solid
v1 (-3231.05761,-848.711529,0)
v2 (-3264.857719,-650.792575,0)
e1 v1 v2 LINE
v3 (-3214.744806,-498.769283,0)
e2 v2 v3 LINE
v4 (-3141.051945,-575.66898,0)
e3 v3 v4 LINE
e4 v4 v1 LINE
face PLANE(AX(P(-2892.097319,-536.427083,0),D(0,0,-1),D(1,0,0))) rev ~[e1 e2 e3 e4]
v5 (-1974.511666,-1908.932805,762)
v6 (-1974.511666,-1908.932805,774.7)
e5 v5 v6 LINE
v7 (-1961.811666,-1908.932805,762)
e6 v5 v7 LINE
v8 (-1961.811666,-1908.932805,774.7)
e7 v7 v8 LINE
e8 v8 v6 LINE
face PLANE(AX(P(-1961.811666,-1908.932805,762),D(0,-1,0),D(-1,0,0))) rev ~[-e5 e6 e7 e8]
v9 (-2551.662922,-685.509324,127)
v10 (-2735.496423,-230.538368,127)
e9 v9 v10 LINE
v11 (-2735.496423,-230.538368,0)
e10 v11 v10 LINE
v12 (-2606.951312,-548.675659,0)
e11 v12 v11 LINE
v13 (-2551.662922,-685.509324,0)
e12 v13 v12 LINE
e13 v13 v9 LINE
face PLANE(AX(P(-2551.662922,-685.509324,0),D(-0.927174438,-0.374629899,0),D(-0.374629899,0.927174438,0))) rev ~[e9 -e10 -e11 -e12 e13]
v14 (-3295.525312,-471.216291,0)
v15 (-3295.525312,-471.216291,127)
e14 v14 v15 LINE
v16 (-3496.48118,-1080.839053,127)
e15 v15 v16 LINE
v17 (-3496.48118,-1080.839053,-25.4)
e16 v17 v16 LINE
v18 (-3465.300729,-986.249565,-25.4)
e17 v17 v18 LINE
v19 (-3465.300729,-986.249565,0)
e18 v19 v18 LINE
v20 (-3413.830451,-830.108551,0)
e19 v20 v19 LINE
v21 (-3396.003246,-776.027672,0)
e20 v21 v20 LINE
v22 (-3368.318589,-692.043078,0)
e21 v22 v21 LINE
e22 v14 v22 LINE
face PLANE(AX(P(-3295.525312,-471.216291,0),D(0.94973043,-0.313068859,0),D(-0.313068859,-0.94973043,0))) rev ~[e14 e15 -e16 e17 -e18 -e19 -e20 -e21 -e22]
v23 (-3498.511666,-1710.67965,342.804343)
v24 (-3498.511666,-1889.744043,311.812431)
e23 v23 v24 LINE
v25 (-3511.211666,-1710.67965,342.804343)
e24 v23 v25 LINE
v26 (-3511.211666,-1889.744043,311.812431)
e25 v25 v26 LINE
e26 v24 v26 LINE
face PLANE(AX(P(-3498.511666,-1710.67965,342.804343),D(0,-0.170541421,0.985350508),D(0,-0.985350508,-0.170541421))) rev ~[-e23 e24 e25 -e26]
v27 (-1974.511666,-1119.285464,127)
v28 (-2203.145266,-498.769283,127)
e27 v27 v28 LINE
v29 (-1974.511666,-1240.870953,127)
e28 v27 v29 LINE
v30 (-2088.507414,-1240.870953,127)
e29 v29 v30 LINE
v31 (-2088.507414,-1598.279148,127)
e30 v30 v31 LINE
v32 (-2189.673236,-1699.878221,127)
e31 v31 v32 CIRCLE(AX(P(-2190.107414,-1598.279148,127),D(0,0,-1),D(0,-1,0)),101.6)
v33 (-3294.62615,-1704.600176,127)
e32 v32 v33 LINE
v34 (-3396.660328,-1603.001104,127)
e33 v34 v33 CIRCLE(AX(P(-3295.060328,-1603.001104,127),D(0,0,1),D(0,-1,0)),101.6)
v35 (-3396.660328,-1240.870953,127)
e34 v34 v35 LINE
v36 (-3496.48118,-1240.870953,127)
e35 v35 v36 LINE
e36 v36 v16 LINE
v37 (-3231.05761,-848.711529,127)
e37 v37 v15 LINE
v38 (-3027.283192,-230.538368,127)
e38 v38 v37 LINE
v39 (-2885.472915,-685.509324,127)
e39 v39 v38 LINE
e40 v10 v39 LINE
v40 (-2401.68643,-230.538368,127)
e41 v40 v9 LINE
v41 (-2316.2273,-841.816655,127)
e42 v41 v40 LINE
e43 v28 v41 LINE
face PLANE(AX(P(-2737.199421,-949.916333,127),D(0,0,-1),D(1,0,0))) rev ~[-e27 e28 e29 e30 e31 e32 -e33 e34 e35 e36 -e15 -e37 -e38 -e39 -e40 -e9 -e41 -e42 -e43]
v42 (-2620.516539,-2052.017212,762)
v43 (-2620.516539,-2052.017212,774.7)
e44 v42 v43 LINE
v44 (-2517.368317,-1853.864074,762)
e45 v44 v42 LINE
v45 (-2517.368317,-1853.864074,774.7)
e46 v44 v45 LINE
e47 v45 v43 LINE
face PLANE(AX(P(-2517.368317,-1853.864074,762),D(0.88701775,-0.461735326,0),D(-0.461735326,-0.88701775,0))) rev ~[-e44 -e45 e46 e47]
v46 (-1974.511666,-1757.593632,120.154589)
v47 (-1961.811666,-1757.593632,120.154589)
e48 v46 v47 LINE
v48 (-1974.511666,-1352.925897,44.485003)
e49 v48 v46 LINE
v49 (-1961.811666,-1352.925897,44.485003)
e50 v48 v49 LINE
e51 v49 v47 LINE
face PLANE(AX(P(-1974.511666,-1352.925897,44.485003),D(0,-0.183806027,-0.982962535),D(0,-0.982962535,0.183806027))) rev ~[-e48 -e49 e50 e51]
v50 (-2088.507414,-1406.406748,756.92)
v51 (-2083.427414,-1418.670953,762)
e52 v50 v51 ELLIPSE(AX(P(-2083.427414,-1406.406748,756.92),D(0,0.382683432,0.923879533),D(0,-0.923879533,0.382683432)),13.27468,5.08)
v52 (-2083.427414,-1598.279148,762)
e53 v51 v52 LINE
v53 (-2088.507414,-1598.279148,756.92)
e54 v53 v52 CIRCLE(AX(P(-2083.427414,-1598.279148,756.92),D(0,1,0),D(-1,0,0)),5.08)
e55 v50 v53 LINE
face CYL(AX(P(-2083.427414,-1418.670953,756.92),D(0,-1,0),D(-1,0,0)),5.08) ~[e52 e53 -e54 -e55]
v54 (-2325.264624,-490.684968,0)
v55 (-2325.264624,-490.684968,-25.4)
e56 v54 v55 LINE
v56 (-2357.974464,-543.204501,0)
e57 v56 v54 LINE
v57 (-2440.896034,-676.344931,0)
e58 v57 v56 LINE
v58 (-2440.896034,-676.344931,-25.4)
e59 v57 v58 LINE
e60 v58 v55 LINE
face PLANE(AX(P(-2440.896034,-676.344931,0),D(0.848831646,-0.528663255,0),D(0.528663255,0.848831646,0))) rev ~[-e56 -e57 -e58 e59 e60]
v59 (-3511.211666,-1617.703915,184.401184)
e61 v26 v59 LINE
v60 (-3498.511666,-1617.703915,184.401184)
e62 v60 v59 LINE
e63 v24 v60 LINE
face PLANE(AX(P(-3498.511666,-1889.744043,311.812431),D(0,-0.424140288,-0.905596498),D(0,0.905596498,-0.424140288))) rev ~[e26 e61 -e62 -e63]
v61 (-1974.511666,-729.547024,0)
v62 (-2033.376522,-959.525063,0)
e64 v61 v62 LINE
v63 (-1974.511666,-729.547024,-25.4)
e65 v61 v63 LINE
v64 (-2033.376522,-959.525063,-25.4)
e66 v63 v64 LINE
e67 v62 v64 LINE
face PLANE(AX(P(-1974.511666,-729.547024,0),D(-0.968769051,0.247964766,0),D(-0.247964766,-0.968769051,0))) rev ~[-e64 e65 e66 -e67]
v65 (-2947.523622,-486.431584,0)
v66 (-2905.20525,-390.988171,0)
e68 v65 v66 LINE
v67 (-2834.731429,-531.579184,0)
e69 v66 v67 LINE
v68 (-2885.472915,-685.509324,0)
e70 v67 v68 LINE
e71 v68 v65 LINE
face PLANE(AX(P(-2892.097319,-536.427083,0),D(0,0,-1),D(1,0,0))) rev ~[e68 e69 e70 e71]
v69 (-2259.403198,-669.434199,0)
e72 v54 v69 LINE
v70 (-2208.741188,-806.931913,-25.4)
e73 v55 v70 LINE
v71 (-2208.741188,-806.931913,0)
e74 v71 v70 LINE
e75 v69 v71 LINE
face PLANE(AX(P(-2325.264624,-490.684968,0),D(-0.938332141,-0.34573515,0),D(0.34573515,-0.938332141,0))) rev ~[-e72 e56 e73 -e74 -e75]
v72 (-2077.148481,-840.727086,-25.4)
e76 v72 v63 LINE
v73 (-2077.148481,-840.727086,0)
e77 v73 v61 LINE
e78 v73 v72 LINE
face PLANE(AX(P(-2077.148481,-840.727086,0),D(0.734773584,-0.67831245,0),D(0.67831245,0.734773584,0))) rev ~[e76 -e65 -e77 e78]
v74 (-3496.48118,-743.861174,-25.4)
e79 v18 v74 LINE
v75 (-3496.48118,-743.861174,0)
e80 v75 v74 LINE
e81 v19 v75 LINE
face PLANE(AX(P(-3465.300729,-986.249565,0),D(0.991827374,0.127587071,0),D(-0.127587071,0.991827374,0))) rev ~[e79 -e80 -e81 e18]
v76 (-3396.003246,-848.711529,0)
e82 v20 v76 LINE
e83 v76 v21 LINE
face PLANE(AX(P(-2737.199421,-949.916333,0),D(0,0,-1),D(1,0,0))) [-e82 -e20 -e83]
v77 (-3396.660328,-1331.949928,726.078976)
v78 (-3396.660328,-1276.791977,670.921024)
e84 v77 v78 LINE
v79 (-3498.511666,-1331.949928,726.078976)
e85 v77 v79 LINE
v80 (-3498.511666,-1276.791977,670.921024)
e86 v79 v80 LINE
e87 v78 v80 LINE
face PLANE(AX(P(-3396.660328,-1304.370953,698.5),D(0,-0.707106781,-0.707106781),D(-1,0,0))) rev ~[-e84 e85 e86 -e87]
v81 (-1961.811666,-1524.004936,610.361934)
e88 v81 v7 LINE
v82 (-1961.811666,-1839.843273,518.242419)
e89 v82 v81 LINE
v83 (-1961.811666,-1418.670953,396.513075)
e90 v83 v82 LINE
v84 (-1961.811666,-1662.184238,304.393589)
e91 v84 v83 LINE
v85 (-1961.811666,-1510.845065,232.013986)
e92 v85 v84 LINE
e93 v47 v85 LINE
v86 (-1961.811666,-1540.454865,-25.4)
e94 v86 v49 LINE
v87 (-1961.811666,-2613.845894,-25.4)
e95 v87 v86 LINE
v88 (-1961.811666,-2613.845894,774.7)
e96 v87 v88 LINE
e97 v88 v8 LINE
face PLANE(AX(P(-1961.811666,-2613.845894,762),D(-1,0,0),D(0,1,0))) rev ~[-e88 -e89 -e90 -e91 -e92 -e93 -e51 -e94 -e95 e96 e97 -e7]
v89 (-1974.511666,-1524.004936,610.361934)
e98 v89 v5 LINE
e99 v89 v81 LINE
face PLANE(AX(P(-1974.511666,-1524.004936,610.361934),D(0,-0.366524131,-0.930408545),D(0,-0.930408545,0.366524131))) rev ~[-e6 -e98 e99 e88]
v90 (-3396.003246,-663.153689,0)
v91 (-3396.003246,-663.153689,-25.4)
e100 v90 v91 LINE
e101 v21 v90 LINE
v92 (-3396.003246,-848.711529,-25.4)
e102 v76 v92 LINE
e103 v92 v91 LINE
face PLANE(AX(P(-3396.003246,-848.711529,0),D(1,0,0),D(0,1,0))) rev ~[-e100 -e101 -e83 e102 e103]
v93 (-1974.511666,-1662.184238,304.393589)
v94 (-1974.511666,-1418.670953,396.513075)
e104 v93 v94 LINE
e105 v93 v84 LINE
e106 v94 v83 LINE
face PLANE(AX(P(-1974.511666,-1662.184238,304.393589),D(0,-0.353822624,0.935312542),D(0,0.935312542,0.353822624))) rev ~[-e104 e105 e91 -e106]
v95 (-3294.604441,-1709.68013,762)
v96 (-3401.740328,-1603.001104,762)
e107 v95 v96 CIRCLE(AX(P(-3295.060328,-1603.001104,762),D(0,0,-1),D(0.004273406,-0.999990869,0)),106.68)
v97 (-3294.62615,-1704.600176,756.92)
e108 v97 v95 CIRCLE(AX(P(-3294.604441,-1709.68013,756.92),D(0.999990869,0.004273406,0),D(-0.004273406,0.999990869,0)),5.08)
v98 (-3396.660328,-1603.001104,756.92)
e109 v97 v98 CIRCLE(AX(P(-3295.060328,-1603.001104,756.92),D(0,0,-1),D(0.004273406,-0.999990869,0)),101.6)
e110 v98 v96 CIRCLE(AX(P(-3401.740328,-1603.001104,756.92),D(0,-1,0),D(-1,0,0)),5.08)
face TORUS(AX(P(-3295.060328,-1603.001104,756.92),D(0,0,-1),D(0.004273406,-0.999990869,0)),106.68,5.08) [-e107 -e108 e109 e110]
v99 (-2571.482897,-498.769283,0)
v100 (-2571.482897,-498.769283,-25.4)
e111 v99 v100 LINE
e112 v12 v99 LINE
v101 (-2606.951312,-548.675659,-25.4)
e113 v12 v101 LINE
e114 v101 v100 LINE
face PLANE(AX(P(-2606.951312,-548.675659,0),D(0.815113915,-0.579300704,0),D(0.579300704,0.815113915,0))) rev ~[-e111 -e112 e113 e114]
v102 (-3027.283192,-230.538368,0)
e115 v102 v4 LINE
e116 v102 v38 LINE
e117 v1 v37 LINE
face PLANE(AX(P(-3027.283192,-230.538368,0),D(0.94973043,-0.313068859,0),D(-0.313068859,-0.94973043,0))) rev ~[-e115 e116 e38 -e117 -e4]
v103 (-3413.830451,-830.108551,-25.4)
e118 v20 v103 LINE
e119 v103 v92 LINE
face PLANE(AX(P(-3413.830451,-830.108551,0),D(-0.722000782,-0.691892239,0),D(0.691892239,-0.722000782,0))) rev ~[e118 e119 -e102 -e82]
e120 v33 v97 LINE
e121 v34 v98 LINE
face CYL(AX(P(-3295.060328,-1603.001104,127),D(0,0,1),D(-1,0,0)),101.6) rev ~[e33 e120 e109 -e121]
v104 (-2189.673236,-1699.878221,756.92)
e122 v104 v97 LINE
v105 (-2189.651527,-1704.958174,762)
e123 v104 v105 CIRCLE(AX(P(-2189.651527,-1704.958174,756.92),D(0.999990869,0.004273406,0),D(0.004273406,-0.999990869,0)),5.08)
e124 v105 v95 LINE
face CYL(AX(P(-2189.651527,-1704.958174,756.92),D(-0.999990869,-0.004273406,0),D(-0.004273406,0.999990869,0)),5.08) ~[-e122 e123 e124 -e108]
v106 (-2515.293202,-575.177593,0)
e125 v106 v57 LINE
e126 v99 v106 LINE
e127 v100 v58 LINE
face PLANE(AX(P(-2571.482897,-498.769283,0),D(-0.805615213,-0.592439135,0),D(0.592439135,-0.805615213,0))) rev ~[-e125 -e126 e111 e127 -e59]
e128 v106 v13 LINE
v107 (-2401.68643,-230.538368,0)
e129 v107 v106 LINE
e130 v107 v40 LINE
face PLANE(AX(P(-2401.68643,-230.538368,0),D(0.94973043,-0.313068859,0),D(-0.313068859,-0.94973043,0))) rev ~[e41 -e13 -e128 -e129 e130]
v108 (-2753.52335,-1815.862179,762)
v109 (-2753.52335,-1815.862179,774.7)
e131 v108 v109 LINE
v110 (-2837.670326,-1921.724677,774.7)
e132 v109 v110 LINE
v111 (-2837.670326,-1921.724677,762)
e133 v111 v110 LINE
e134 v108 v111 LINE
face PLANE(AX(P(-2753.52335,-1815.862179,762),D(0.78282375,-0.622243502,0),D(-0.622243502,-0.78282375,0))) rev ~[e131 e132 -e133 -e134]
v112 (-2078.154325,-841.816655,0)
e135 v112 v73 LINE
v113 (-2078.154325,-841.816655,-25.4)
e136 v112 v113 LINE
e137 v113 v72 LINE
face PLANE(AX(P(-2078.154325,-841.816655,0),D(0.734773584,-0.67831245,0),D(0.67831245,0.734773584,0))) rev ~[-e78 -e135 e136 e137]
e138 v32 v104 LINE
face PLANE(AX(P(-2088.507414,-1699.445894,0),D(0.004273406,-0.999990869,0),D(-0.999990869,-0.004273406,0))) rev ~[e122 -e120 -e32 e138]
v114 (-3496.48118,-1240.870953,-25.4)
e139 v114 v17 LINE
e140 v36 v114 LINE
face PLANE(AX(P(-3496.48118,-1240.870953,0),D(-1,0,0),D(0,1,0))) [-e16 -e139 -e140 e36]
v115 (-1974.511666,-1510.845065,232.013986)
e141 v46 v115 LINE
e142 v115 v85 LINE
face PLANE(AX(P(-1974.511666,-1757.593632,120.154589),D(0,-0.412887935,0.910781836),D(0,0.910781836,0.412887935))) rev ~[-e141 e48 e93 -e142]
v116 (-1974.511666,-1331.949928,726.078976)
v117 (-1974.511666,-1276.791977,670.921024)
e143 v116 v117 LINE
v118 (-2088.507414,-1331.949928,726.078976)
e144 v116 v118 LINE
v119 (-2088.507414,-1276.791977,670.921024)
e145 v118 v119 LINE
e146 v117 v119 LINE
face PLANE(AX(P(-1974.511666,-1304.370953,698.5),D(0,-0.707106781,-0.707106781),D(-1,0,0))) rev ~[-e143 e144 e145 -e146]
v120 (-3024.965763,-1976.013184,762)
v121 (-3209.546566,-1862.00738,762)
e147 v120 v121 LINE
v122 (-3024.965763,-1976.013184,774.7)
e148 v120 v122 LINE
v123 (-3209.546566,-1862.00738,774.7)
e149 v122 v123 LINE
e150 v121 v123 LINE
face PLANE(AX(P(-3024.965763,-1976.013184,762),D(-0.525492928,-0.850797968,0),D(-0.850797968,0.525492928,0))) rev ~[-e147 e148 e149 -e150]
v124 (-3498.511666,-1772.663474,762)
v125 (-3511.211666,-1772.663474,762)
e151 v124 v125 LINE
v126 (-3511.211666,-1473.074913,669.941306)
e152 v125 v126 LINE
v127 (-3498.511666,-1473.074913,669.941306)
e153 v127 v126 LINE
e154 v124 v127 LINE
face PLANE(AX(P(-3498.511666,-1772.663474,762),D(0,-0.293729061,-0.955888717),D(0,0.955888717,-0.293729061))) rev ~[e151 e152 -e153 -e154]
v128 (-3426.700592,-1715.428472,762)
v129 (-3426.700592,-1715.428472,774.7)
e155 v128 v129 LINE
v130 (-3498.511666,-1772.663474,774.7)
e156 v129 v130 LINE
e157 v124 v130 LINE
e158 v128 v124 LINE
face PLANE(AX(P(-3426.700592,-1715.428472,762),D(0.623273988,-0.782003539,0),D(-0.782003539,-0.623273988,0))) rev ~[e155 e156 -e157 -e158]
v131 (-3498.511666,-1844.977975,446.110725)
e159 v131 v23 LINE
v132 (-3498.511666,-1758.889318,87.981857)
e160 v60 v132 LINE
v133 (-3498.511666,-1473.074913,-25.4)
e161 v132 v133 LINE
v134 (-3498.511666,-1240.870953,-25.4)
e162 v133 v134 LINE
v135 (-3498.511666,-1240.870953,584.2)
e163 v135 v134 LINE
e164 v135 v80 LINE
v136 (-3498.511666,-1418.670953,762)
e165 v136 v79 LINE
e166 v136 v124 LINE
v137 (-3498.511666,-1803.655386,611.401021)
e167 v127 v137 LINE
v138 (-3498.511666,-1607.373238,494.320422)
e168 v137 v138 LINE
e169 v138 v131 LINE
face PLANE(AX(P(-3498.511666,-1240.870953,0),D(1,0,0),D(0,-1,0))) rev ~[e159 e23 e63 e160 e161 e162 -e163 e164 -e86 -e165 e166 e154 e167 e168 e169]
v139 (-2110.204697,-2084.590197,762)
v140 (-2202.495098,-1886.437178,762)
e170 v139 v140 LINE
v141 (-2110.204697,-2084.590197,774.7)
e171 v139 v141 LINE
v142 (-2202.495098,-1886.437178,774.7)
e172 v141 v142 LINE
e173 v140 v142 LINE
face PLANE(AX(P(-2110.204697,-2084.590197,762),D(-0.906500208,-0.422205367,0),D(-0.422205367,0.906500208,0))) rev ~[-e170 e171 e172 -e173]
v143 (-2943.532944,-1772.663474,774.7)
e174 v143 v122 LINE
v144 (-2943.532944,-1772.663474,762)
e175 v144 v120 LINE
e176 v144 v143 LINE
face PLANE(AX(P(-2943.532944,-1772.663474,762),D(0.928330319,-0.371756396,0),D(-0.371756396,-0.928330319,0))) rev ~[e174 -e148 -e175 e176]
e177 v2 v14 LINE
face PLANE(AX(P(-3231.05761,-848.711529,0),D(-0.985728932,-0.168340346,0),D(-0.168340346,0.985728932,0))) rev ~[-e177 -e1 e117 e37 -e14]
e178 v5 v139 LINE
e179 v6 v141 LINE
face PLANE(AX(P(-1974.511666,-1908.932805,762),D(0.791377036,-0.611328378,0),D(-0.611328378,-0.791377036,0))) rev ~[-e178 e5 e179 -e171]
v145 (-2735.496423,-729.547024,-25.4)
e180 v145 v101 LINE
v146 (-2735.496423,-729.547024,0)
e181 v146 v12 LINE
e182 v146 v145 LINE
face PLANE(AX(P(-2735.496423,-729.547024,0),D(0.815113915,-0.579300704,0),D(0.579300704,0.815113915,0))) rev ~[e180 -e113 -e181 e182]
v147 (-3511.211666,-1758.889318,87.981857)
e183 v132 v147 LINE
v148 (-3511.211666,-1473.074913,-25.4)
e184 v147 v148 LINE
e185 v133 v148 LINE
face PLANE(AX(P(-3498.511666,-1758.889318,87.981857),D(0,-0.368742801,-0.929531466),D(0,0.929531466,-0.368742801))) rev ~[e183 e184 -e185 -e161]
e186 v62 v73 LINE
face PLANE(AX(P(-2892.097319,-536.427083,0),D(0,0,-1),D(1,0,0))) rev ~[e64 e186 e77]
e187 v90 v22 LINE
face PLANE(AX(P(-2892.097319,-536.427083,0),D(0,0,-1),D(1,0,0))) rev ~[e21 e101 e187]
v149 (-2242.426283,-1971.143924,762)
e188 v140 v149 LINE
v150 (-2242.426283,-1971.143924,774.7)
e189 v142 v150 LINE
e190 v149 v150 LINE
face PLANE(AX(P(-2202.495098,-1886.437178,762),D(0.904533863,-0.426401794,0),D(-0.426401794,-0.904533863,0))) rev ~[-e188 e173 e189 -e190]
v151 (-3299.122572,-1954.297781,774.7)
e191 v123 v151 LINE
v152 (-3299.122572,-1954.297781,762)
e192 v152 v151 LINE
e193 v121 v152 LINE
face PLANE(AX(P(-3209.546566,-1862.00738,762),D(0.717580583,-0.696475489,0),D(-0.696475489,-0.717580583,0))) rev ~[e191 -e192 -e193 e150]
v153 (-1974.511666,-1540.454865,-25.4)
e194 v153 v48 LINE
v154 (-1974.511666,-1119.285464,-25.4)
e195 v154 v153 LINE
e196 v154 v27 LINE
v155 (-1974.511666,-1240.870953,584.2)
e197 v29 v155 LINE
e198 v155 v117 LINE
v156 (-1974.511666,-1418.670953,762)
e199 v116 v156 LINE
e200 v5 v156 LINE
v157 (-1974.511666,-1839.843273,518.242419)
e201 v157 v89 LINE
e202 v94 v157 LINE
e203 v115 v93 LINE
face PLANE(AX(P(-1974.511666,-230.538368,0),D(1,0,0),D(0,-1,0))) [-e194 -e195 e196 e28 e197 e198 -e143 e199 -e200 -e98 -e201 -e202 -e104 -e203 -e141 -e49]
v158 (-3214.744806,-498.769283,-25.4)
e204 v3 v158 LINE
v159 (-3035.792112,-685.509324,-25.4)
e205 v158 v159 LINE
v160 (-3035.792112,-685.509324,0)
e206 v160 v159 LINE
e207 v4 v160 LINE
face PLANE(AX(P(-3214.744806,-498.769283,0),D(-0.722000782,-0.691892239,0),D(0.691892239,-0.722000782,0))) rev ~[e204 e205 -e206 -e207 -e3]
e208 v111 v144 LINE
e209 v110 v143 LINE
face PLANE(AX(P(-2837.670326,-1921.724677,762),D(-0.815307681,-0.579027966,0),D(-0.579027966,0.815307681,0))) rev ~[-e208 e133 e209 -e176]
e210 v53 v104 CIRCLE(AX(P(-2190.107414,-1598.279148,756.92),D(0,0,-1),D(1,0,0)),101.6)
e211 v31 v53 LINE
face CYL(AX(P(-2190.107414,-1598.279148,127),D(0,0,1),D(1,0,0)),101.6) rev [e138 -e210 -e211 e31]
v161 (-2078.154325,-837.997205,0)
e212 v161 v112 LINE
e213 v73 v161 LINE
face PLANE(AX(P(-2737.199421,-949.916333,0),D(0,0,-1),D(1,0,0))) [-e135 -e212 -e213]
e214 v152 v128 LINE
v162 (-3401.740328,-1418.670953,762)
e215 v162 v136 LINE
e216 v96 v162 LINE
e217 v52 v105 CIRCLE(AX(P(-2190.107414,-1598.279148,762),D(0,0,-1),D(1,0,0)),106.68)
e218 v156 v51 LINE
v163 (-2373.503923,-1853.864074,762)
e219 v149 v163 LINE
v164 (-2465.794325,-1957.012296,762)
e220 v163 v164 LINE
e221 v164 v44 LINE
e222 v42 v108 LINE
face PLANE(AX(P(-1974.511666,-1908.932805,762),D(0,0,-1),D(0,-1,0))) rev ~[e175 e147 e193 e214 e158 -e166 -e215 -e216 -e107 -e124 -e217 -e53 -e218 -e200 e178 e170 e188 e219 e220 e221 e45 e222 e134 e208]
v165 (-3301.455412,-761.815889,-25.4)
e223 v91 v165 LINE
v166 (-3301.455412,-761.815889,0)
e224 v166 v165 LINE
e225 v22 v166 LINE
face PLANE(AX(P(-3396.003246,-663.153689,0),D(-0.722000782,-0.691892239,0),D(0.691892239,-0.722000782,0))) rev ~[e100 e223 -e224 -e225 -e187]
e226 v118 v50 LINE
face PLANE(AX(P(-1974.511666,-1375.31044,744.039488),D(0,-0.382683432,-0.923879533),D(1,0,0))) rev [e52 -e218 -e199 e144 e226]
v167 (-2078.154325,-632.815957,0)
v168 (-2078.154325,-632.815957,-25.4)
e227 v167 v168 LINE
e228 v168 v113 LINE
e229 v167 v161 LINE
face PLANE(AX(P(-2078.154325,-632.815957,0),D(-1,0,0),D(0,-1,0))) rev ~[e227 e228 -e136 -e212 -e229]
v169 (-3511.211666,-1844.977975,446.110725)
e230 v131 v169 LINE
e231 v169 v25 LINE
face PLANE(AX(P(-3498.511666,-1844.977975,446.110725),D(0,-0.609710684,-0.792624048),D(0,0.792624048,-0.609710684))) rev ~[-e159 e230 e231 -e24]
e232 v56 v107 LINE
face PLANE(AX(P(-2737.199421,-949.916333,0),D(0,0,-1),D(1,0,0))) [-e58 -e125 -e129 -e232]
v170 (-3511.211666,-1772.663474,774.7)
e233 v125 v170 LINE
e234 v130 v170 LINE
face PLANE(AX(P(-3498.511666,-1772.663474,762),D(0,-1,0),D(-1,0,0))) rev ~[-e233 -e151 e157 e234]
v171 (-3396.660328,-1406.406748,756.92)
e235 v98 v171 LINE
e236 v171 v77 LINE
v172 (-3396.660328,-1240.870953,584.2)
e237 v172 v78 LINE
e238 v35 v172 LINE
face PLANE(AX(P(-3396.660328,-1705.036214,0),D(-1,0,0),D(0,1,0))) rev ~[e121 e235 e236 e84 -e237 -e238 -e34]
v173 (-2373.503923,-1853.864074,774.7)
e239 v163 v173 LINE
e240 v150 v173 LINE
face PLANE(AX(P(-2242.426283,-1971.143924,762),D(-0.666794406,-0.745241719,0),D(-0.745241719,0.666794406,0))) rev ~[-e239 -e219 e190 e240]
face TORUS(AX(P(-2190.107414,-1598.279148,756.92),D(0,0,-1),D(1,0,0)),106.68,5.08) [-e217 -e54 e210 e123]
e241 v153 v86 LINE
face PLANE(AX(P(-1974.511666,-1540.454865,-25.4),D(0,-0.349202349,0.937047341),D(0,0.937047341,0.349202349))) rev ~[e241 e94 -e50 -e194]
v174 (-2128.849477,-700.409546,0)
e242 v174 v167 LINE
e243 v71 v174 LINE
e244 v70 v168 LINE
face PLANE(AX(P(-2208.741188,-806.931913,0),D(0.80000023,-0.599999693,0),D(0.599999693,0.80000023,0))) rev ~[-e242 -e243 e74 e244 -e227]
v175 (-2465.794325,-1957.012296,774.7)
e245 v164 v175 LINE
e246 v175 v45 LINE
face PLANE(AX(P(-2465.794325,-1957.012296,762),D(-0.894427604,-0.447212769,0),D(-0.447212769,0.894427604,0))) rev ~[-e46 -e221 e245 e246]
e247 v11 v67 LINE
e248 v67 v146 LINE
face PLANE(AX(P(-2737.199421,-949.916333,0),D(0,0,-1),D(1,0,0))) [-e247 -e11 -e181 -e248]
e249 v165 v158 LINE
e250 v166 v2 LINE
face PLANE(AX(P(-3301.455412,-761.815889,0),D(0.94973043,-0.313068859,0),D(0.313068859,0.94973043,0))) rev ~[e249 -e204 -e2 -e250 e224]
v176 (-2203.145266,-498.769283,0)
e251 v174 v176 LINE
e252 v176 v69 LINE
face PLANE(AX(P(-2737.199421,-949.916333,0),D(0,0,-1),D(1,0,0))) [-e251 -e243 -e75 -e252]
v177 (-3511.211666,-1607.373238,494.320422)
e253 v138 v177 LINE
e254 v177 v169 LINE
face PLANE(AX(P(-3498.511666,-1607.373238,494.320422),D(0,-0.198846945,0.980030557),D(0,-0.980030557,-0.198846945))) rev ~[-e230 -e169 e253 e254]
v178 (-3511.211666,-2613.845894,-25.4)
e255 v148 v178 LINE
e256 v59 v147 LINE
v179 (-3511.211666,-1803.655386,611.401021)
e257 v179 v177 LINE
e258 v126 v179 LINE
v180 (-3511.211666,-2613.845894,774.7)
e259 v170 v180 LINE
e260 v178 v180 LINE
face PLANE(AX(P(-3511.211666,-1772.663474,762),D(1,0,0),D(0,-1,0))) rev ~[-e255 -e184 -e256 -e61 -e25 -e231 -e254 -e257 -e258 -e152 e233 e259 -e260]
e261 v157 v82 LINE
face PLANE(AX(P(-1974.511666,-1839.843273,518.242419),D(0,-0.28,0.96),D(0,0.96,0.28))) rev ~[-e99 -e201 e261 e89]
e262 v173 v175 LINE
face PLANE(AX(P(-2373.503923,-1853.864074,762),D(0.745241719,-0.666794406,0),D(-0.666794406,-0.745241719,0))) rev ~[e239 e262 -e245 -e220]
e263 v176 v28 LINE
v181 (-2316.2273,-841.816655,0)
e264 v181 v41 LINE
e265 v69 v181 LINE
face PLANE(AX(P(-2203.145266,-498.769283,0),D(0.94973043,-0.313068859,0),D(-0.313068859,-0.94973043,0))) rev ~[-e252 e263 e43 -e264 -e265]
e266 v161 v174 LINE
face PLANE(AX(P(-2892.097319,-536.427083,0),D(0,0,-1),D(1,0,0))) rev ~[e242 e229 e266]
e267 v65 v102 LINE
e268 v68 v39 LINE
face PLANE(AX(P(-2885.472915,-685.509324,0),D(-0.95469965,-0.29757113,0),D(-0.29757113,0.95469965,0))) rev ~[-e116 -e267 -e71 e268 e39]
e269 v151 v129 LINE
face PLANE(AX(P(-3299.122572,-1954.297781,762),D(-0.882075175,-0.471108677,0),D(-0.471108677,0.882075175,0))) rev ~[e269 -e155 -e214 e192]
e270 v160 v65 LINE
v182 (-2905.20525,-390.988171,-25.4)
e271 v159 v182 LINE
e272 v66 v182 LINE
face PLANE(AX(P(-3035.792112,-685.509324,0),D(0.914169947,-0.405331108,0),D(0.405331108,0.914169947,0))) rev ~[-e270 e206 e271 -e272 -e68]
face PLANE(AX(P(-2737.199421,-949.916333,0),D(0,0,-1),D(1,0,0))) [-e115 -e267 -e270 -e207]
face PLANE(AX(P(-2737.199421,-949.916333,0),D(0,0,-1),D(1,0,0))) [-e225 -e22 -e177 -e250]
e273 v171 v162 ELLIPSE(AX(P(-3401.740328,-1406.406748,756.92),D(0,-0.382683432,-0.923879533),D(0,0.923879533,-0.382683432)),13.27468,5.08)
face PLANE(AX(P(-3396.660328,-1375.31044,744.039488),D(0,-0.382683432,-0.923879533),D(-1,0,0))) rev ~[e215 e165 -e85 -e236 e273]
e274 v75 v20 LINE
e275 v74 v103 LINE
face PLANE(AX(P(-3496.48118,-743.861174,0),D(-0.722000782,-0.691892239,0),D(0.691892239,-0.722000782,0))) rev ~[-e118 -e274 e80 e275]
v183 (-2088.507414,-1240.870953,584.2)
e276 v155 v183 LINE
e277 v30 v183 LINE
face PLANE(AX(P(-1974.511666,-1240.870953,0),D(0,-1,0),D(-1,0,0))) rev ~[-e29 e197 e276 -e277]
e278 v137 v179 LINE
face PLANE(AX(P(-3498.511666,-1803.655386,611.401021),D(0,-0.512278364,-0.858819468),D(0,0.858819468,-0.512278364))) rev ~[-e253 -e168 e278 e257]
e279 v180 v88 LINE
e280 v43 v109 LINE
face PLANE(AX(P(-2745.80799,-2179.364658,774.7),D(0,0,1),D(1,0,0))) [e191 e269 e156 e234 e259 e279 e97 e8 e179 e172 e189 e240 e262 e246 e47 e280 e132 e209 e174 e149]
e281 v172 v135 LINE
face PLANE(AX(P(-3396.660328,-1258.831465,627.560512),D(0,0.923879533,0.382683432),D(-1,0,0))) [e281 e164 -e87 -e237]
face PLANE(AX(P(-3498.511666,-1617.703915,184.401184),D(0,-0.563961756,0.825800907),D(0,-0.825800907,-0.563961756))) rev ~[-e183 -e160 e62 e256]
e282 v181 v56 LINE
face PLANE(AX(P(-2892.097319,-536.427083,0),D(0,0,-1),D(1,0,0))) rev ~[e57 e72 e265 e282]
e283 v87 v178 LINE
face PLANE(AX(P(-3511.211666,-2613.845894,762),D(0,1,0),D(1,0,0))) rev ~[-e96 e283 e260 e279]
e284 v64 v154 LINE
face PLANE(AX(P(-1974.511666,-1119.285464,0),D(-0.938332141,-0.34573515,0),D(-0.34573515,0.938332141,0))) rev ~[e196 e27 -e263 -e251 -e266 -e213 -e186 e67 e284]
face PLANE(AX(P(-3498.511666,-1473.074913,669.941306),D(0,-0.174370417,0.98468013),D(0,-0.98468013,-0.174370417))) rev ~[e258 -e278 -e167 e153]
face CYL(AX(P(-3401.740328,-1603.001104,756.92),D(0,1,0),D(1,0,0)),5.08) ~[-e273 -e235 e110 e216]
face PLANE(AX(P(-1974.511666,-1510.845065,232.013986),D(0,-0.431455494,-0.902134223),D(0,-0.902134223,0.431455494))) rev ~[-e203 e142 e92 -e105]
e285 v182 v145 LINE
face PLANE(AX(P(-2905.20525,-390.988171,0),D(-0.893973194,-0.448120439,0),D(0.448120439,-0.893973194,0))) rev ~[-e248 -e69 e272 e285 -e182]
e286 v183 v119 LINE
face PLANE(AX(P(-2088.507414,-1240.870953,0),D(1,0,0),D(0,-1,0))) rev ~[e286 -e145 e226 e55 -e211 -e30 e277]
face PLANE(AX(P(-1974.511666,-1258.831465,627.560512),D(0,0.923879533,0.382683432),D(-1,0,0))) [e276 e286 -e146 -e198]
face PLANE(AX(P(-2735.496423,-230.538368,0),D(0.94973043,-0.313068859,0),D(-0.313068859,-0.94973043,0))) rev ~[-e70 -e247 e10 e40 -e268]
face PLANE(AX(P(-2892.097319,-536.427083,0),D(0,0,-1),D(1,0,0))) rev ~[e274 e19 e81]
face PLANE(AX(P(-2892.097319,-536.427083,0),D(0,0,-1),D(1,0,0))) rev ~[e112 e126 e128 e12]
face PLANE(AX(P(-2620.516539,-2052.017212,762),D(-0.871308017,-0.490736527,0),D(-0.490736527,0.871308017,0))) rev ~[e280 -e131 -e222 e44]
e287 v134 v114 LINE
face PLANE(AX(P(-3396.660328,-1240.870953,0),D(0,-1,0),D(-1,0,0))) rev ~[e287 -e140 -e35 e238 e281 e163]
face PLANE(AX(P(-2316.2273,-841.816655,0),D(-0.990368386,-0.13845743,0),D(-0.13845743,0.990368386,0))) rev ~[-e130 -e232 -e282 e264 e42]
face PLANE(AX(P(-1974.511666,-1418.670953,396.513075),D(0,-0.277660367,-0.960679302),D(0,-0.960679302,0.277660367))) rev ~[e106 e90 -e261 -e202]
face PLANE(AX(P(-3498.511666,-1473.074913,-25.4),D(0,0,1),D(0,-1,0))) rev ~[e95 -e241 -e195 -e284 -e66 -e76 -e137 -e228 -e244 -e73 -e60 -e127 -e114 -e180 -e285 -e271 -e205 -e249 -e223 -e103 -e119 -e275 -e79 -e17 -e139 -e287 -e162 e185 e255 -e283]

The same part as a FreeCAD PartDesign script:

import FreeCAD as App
import Part
import Sketcher
from FreeCAD import Vector
Q = App.Units.Quantity


def edges_at(feature, points):
    """Names of the edges that pass closest to the given points."""
    edges = feature.Shape.Edges
    near = lambda p: min(range(len(edges)), key=lambda i: edges[i].distToShape(Part.Vertex(*p))[0])
    return sorted({f"Edge{near(p) + 1}" for p in points})


def add_polygon(sketch, points):
    """Adds a closed chain of lines whose ends are joined by coincident constraints."""
    first, n = sketch.GeometryCount, len(points)
    for a, b in zip(points, points[1:] + points[:1]):
        sketch.addGeometry(Part.LineSegment(App.Vector(*a, 0), App.Vector(*b, 0)), False)
    for i in range(n):
        sketch.addConstraint(Sketcher.Constraint("Coincident", first + i, 2, first + (i + 1) % n, 1))

doc = App.newDocument("Part")
params = doc.addObject("Spreadsheet::Sheet", "Params")
for row, (alias, value) in enumerate([
    ("sketch1_width", "60 in"),
    ("pad1_length", "30 in"),
    ("pad2_length", "5 in"),
    ("sketch4_width", "60 in"),
    ("pad3_length", "1 in"),
    ("chamfer_size", "5 in"),
    ("chamfer2_size", "2 in"),
    ("fillet_radius", "4 in"),
    ("fillet2_radius", "0.2 in"),
    ("sketch5_height", "31 in"),
    ("pad4_length", "0.5 in"),
    ("sketch6_height", "31 in"),
    ("pad5_length", "0.5 in"),
    ("sketch7_width", "61 in"),
    ("sketch7_width2", "0.5 in"),
    ("pad6_length", "0.5 in"),
], start=1):
    params.set(f"A{row}", alias)
    params.set(f"B{row}", "=" + value)
    params.setAlias(f"B{row}", alias)

body = doc.addObject("PartDesign::Body", "Body")

# Sketch on XY plane
sketch1 = body.newObject("Sketcher::SketchObject", "Sketch")
sketch1.AttachmentSupport = (doc.getObject("XY_Plane"), [""])
sketch1.MapMode = "FlatFace"
add_polygon(sketch1, [(-3499, -2614), (-1975, -2614), (-1975, -1241), (-2089, -1241), (-2089, -1699), (-3397, -1705), (-3397, -1241), (-3499, -1241)])  # lines 0-7
sketch1.addConstraint([
    Sketcher.Constraint("Horizontal", 0),
    Sketcher.Constraint("Vertical", 1),
    Sketcher.Constraint("Horizontal", 2),
    Sketcher.Constraint("Vertical", 3),
    Sketcher.Constraint("Vertical", 5),
    Sketcher.Constraint("Horizontal", 6),
    Sketcher.Constraint("Vertical", 7),
    Sketcher.Constraint("Horizontal", 2, 2, 5, 2),
    Sketcher.Constraint("DistanceX", 0, 1, 0, 2, Q("60 in")),
    Sketcher.Constraint("DistanceY", 0, 2, 3, 2, Q("36 in")),
    Sketcher.Constraint("DistanceX", 6, 2, 6, 1, Q("101.851338 mm")),
    Sketcher.Constraint("DistanceY", 1, 1, 1, 2, Q("1372.974941 mm")),
    Sketcher.Constraint("DistanceY", 5, 1, 5, 2, Q("464.165261 mm")),
    Sketcher.Constraint("Distance", 4, Q("1308.164859 mm")),
    Sketcher.Constraint("DistanceX", 0, 2, -1, 1, Q("1974.511666 mm")),
    Sketcher.Constraint("DistanceY", 0, 2, -1, 1, Q("2613.845894 mm")),
])
sketch1.setExpression("Constraints[16]", "Params.sketch1_width")
pad1 = body.newObject("PartDesign::Pad", "Pad")
pad1.Profile = sketch1
pad1.setExpression("Length", "Params.pad1_length")
body2 = doc.addObject("PartDesign::Body", "Body001")

# Sketch on XY plane
sketch2 = body2.newObject("Sketcher::SketchObject", "Sketch001")
sketch2.AttachmentSupport = (doc.getObject("XY_Plane001"), [""])
sketch2.MapMode = "FlatFace"
add_polygon(sketch2, [(-1975, -231), (-1975, -1241), (-2089, -1241), (-2089, -1699), (-3397, -1705), (-3397, -1241), (-3496, -1241), (-3496, -231)])  # lines 0-7
sketch2.addConstraint([
    Sketcher.Constraint("Vertical", 0),
    Sketcher.Constraint("Horizontal", 1),
    Sketcher.Constraint("Vertical", 2),
    Sketcher.Constraint("Vertical", 4),
    Sketcher.Constraint("Horizontal", 5),
    Sketcher.Constraint("Vertical", 6),
    Sketcher.Constraint("Horizontal", 7),
    Sketcher.Constraint("Horizontal", 1, 2, 4, 2),
    Sketcher.Constraint("DistanceY", 2, 2, 2, 1, Q("458.574941 mm")),
    Sketcher.Constraint("DistanceY", 4, 1, 4, 2, Q("464.165261 mm")),
    Sketcher.Constraint("Distance", 3, Q("1308.164859 mm")),
    Sketcher.Constraint("DistanceX", 1, 2, 1, 1, Q("113.995748 mm")),
    Sketcher.Constraint("DistanceX", 5, 2, 5, 1, Q("99.820852 mm")),
    Sketcher.Constraint("DistanceY", 0, 2, 0, 1, Q("1010.332584 mm")),
    Sketcher.Constraint("DistanceX", 5, 2, -1, 1, Q("3496.48118 mm")),
    Sketcher.Constraint("DistanceY", 6, 2, -1, 1, Q("230.538368 mm")),
])
pad2 = body2.newObject("PartDesign::Pad", "Pad001")
pad2.Profile = sketch2
pad2.setExpression("Length", "Params.pad2_length")
doc.recompute()

boolean = body.newObject("PartDesign::Boolean", "Boolean")
boolean.Type = "Fuse"
boolean.addObjects([body2])

# Sketch on XY plane
sketch3 = body.newObject("Sketcher::SketchObject", "Sketch002")
sketch3.AttachmentSupport = (doc.getObject("XY_Plane"), [""])
sketch3.MapMode = "FlatFace"
add_polygon(sketch3, [(-2316, -842), (-2402, -231), (-1975, -231), (-1975, -1119), (-2203, -499)])  # lines 0-4
add_polygon(sketch3, [(-2735, -231), (-2402, -231), (-2552, -686)])  # lines 5-7
add_polygon(sketch3, [(-3496, -231), (-3027, -231), (-3231, -849), (-3296, -471), (-3496, -1081)])  # lines 8-12
add_polygon(sketch3, [(-3027, -231), (-2735, -231), (-2885, -686)])  # lines 13-15
sketch3.addConstraint([
    Sketcher.Constraint("Horizontal", 1),
    Sketcher.Constraint("Vertical", 2),
    Sketcher.Constraint("Horizontal", 5),
    Sketcher.Constraint("Horizontal", 8),
    Sketcher.Constraint("Vertical", 12),
    Sketcher.Constraint("Horizontal", 13),
    Sketcher.Constraint("Coincident", 5, 2, 0, 2),
    Sketcher.Constraint("Coincident", 13, 2, 7, 2),
    Sketcher.Constraint("Coincident", 15, 2, 8, 2),
    Sketcher.Constraint("Parallel", 4, 6),
    Sketcher.Constraint("Parallel", 6, 9),
    Sketcher.Constraint("Parallel", 9, 11),
    Sketcher.Constraint("Parallel", 11, 14),
    Sketcher.Constraint("Horizontal", 6, 2, 14, 2),
    Sketcher.Constraint("DistanceX", 8, 1, 8, 2, Q("469.197989 mm")),
    Sketcher.Constraint("DistanceX", 13, 1, 13, 2, Q("291.786769 mm")),
    Sketcher.Constraint("DistanceX", 4, 2, -1, 1, Q("2316.2273 mm")),
    Sketcher.Constraint("DistanceX", 3, 2, 1, 2, Q("228.633599 mm")),
    Sketcher.Constraint("DistanceX", 7, 2, 6, 2, Q("183.833501 mm")),
    Sketcher.Constraint("Distance", 0, Q("617.223141 mm")),
    Sketcher.Constraint("Distance", 3, Q("661.296948 mm")),
    Sketcher.Constraint("Distance", 4, Q("361.204991 mm")),
    Sketcher.Constraint("Distance", 6, Q("479.052731 mm")),
    Sketcher.Constraint("DistanceX", 1, 1, 1, 2, Q("427.174764 mm")),
    Sketcher.Constraint("DistanceX", 5, 1, 5, 2, Q("333.809993 mm")),
    Sketcher.Constraint("DistanceY", 12, 1, 12, 2, Q("850.300685 mm")),
    Sketcher.Constraint("DistanceY", 0, 2, -1, 1, Q("230.538368 mm")),
    Sketcher.Constraint("DistanceX", 9, 2, -1, 1, Q("3231.05761 mm")),
    Sketcher.Constraint("DistanceY", 10, 2, -1, 1, Q("471.216291 mm")),
])
pocket1 = body.newObject("PartDesign::Pocket", "Pocket")
pocket1.Profile = sketch3
pocket1.Type = "ThroughAll"
pocket1.Reversed = True
body3 = doc.addObject("PartDesign::Body", "Body002")

# Sketch on XY plane
sketch4 = body3.newObject("Sketcher::SketchObject", "Sketch003")
sketch4.AttachmentSupport = (doc.getObject("XY_Plane002"), [""])
sketch4.MapMode = "FlatFace"
add_polygon(sketch4, [(-2905.2, -391), (-2735.5, -729.5), (-2607, -548.7), (-2571.5, -498.8), (-2440.9, -676.3), (-2325.3, -490.7), (-2208.7, -806.9), (-2078.2, -632.8), (-2078.2, -841.8), (-2077.1, -840.7), (-1974.5, -729.5), (-2033.4, -959.5), (-1974.5, -1119.3), (-1974.5, -2613.8), (-3498.5, -2613.8), (-3498.5, -1240.9), (-3496.5, -1240.9), (-3496.5, -1080.8), (-3465.3, -986.2), (-3496.5, -743.9), (-3413.8, -830.1), (-3396, -848.7), (-3396, -663.2), (-3301.5, -761.8), (-3214.7, -498.8), (-3035.8, -685.5)])  # lines 0-25
sketch4.addConstraint([
    Sketcher.Constraint("Vertical", 7),
    Sketcher.Constraint("Vertical", 12),
    Sketcher.Constraint("Horizontal", 13),
    Sketcher.Constraint("Vertical", 14),
    Sketcher.Constraint("Horizontal", 15),
    Sketcher.Constraint("Vertical", 16),
    Sketcher.Constraint("Vertical", 21),
    Sketcher.Constraint("Parallel", 1, 2),
    Sketcher.Constraint("Parallel", 8, 9),
    Sketcher.Constraint("Parallel", 5, 11),
    Sketcher.Constraint("Parallel", 19, 20),
    Sketcher.Constraint("Parallel", 20, 22),
    Sketcher.Constraint("Parallel", 17, 23),
    Sketcher.Constraint("Parallel", 22, 24),
    Sketcher.Constraint("Horizontal", 0, 2, 9, 2),
    Sketcher.Constraint("Horizontal", 2, 2, 23, 2),
    Sketcher.Constraint("Vertical", 9, 2, 11, 2),
    Sketcher.Constraint("Vertical", 16, 2, 18, 2),
    Sketcher.Constraint("DistanceX", 13, 2, 13, 1, Q("60 in")),
    Sketcher.Constraint("DistanceY", 16, 1, 16, 2, Q("160.031899 mm")),
    Sketcher.Constraint("DistanceX", 7, 2, 8, 2, Q("0.0396002 in")),
    Sketcher.Constraint("Distance", 22, Q("136.651098 mm")),
    Sketcher.Constraint("DistanceY", 12, 2, 12, 1, Q("1494.56043 mm")),
    Sketcher.Constraint("DistanceY", 14, 1, 14, 2, Q("1372.974941 mm")),
    Sketcher.Constraint("DistanceY", 21, 1, 21, 2, Q("185.55784 mm")),
    Sketcher.Constraint("DistanceX", 0, 2, 4, 2, Q("410.231799 mm")),
    Sketcher.Constraint("DistanceX", 4, 2, 6, 2, Q("247.110298 mm")),
    Sketcher.Constraint("DistanceY", 11, 2, 10, 2, Q("159.760401 mm")),
    Sketcher.Constraint("DistanceY", 15, 2, 19, 2, Q("410.762401 mm")),
    Sketcher.Constraint("DistanceY", 22, 2, 21, 2, Q("98.6622 mm")),
    Sketcher.Constraint("DistanceX", 22, 2, 24, 2, Q("265.6633 mm")),
    Sketcher.Constraint("DistanceY", 0, 2, 24, 2, Q("44.0377 mm")),
    Sketcher.Constraint("Distance", 1, Q("221.897039 mm")),
    Sketcher.Constraint("Distance", 2, Q("61.226259 mm")),
    Sketcher.Constraint("Distance", 3, Q("220.422411 mm")),
    Sketcher.Constraint("Distance", 4, Q("218.72413 mm")),
    Sketcher.Constraint("Distance", 5, Q("337.03092 mm")),
    Sketcher.Constraint("Distance", 11, Q("170.259969 mm")),
    Sketcher.Constraint("Distance", 19, Q("119.456072 mm")),
    Sketcher.Constraint("Distance", 20, Q("25.765869 mm")),
    Sketcher.Constraint("DistanceX", 15, 1, 15, 2, Q("2.030486 mm")),
    Sketcher.Constraint("DistanceY", 7, 2, 7, 1, Q("209.000697 mm")),
    Sketcher.Constraint("DistanceX", 1, 2, -1, 1, Q("2606.951312 mm")),
    Sketcher.Constraint("DistanceY", 1, 2, -1, 1, Q("548.675659 mm")),
    Sketcher.Constraint("DistanceY", 3, 2, -1, 1, Q("676.344931 mm")),
    Sketcher.Constraint("DistanceX", 5, 2, -1, 1, Q("2208.741188 mm")),
    Sketcher.Constraint("DistanceX", 15, 2, -1, 1, Q("3496.48118 mm")),
    Sketcher.Constraint("DistanceX", 17, 2, -1, 1, Q("3465.300729 mm")),
    Sketcher.Constraint("DistanceY", 19, 2, -1, 1, Q("830.108551 mm")),
    Sketcher.Constraint("DistanceX", 25, 2, -1, 1, Q("2905.20525 mm")),
    Sketcher.Constraint("DistanceY", 25, 2, -1, 1, Q("390.988171 mm")),
    Sketcher.Constraint("DistanceY", 6, 2, 4, 2, Q("142.130989 mm")),
])
sketch4.setExpression("Constraints[44]", "Params.sketch4_width")
pad3 = body3.newObject("PartDesign::Pad", "Pad002")
pad3.Profile = sketch4
pad3.setExpression("Length", "Params.pad3_length")
pad3.Reversed = True
doc.recompute()

boolean2 = body3.newObject("PartDesign::Boolean", "Boolean001")
boolean2.Type = "Fuse"
boolean2.addObjects([body])
doc.recompute()

chamfer = body3.newObject("PartDesign::Chamfer", "Chamfer")
chamfer.Base = (boolean2, edges_at(boolean2, [(-3447.586, -1240.871, 762), (-2031.51, -1240.871, 762)]))
chamfer.setExpression("Size", "Params.chamfer_size")
doc.recompute()

chamfer2 = body3.newObject("PartDesign::Chamfer", "Chamfer001")
chamfer2.Base = (chamfer, edges_at(chamfer, [
    (-2031.51, -1240.871, 635),
    (-2031.51, -1367.871, 762),
    (-3447.586, -1240.871, 635),
    (-3447.586, -1367.871, 762),
]))
chamfer2.setExpression("Size", "Params.chamfer2_size")
doc.recompute()

fillet = body3.newObject("PartDesign::Fillet", "Fillet")
fillet.Base = (chamfer2, edges_at(chamfer2, [(-3396.66, -1705.036, 444.5), (-2088.507, -1699.446, 444.5)]))
fillet.setExpression("Radius", "Params.fillet_radius")
doc.recompute()

fillet2 = body3.newObject("PartDesign::Fillet", "Fillet001")
fillet2.Base = (fillet, edges_at(fillet, [(-2742.15, -1702.239, 762)]))
fillet2.setExpression("Radius", "Params.fillet2_radius")

# Sketch on YZ plane
sketch5 = body3.newObject("Sketcher::SketchObject", "Sketch004")
sketch5.AttachmentSupport = (doc.getObject("YZ_Plane002"), [""])
sketch5.MapMode = "FlatFace"
sketch5.AttachmentOffset = App.Placement(Vector(0, 0, -1974.511666), App.Rotation())
add_polygon(sketch5, [(-1524, 610), (-1909, 762), (-2614, 762), (-2614, -25), (-1540, -25), (-1353, 44), (-1758, 120), (-1511, 232), (-1662, 304), (-1419, 397), (-1840, 518)])  # lines 0-10
sketch5.addConstraint([
    Sketcher.Constraint("Horizontal", 1),
    Sketcher.Constraint("Vertical", 2),
    Sketcher.Constraint("Horizontal", 3),
    Sketcher.Constraint("DistanceY", 2, 2, 2, 1, Q("31 in")),
    Sketcher.Constraint("DistanceY", -1, 1, 0, 2, Q("30 in")),
    Sketcher.Constraint("DistanceX", 1, 2, 1, 1, Q("704.913089 mm")),
    Sketcher.Constraint("DistanceX", 3, 1, 3, 2, Q("1073.39103 mm")),
    Sketcher.Constraint("DistanceX", 3, 2, 6, 2, Q("29.609799 mm")),
    Sketcher.Constraint("DistanceY", 5, 2, 7, 2, Q("184.239 mm")),
    Sketcher.Constraint("Distance", 0, Q("413.719189 mm")),
    Sketcher.Constraint("Distance", 5, Q("411.681749 mm")),
    Sketcher.Constraint("Distance", 8, Q("260.354988 mm")),
    Sketcher.Constraint("DistanceX", 5, 2, -1, 1, Q("1757.593632 mm")),
    Sketcher.Constraint("DistanceY", -1, 1, 5, 2, Q("120.154589 mm")),
    Sketcher.Constraint("DistanceX", 7, 2, -1, 1, Q("1662.184238 mm")),
    Sketcher.Constraint("DistanceY", -1, 1, 9, 2, Q("518.242419 mm")),
    Sketcher.Constraint("DistanceX", 0, 2, 4, 2, Q("556.006908 mm")),
    Sketcher.Constraint("DistanceX", 7, 2, 4, 2, Q("309.258342 mm")),
    Sketcher.Constraint("DistanceY", 6, 2, 8, 2, Q("164.499089 mm")),
    Sketcher.Constraint("DistanceY", 4, 2, 8, 2, Q("352.028072 mm")),
    Sketcher.Constraint("DistanceX", 0, 2, 9, 2, Q("69.089532 mm")),
    Sketcher.Constraint("DistanceY", 8, 2, 10, 2, Q("213.848859 mm")),
])
sketch5.setExpression("Constraints[14]", "Params.sketch5_height")
pad4 = body3.newObject("PartDesign::Pad", "Pad003")
pad4.Profile = sketch5
pad4.setExpression("Length", "Params.pad4_length")

# Sketch on YZ plane
sketch6 = body3.newObject("Sketcher::SketchObject", "Sketch005")
sketch6.AttachmentSupport = (doc.getObject("YZ_Plane002"), [""])
sketch6.MapMode = "FlatFace"
sketch6.AttachmentOffset = App.Placement(Vector(0, 0, -3498.511666), App.Rotation())
add_polygon(sketch6, [(-1759, 88), (-1473, -25), (-2614, -25), (-2614, 762), (-1773, 762), (-1473, 670), (-1804, 611), (-1607, 494), (-1845, 446), (-1711, 343), (-1890, 312), (-1618, 184)])  # lines 0-11
sketch6.addConstraint([
    Sketcher.Constraint("Horizontal", 1),
    Sketcher.Constraint("Vertical", 2),
    Sketcher.Constraint("Horizontal", 3),
    Sketcher.Constraint("Vertical", 0, 2, 4, 2),
    Sketcher.Constraint("DistanceY", 2, 1, 2, 2, Q("31 in")),
    Sketcher.Constraint("DistanceY", 0, 2, -1, 1, Q("1 in")),
    Sketcher.Constraint("DistanceY", 8, 2, 6, 2, Q("5.9652 in")),
    Sketcher.Constraint("DistanceX", 1, 2, 1, 1, Q("1140.770981 mm")),
    Sketcher.Constraint("DistanceX", 3, 1, 3, 2, Q("841.18242 mm")),
    Sketcher.Constraint("DistanceY", 6, 2, 5, 2, Q("117.080599 mm")),
    Sketcher.Constraint("DistanceX", 7, 2, 3, 2, Q("72.314501 mm")),
    Sketcher.Constraint("DistanceX", 10, 2, 0, 2, Q("144.629002 mm")),
    Sketcher.Constraint("Distance", 4, Q("313.413639 mm")),
    Sketcher.Constraint("Distance", 10, Q("300.39883 mm")),
    Sketcher.Constraint("DistanceY", -1, 1, 5, 2, Q("611.401021 mm")),
    Sketcher.Constraint("DistanceX", 8, 2, -1, 1, Q("1710.67965 mm")),
    Sketcher.Constraint("DistanceY", -1, 1, 9, 2, Q("311.812431 mm")),
    Sketcher.Constraint("DistanceX", 5, 2, 3, 2, Q("30.991912 mm")),
    Sketcher.Constraint("DistanceX", 5, 2, 6, 2, Q("196.282148 mm")),
    Sketcher.Constraint("DistanceY", 7, 2, 4, 2, Q("223.830581 mm")),
    Sketcher.Constraint("DistanceX", 9, 2, 7, 2, Q("44.766068 mm")),
    Sketcher.Constraint("DistanceY", 11, 2, 7, 2, Q("358.128868 mm")),
    Sketcher.Constraint("Distance", 0, Q("307.482226 mm")),
    Sketcher.Constraint("Distance", 8, Q("169.435087 mm")),
])
sketch6.setExpression("Constraints[16]", "Params.sketch6_height")
pad5 = body3.newObject("PartDesign::Pad", "Pad004")
pad5.Profile = sketch6
pad5.setExpression("Length", "Params.pad5_length")
pad5.Reversed = True

# Sketch on XY plane
sketch7 = body3.newObject("Sketcher::SketchObject", "Sketch006")
sketch7.AttachmentSupport = (doc.getObject("XY_Plane002"), [""])
sketch7.MapMode = "FlatFace"
sketch7.AttachmentOffset = App.Placement(Vector(0, 0, 30 * 25.4), App.Rotation())
add_polygon(sketch7, [(-3427, -1715), (-3499, -1773), (-3511, -1773), (-3511, -2614), (-1962, -2614), (-1962, -1909), (-1975, -1909), (-2110, -2085), (-2202, -1886), (-2242, -1971), (-2374, -1854), (-2466, -1957), (-2517, -1854), (-2621, -2052), (-2754, -1816), (-2838, -1922), (-2944, -1773), (-3025, -1976), (-3210, -1862), (-3299, -1954)])  # lines 0-19
sketch7.addConstraint([
    Sketcher.Constraint("Horizontal", 1),
    Sketcher.Constraint("Vertical", 2),
    Sketcher.Constraint("Horizontal", 3),
    Sketcher.Constraint("Vertical", 4),
    Sketcher.Constraint("Horizontal", 5),
    Sketcher.Constraint("Perpendicular", 9, 10),
    Sketcher.Constraint("Horizontal", 9, 2, 11, 2),
    Sketcher.Constraint("Horizontal", 1, 2, 15, 2),
    Sketcher.Constraint("Equal", 1, 5),
    Sketcher.Constraint("DistanceX", 3, 1, 3, 2, Q("61 in")),
    Sketcher.Constraint("DistanceX", 1, 2, 1, 1, Q("0.5 in")),
    Sketcher.Constraint("DistanceY", 6, 2, 7, 2, Q("7.8013 in")),
    Sketcher.Constraint("Distance", 19, Q("270.8038 mm")),
    Sketcher.Constraint("DistanceY", 2, 2, 2, 1, Q("841.18242 mm")),
    Sketcher.Constraint("DistanceY", 4, 1, 4, 2, Q("704.913089 mm")),
    Sketcher.Constraint("DistanceX", 7, 2, -1, 1, Q("2202.495098 mm")),
    Sketcher.Constraint("DistanceX", 7, 2, 6, 2, Q("92.290401 mm")),
    Sketcher.Constraint("DistanceX", 10, 2, 9, 2, Q("92.290401 mm")),
    Sketcher.Constraint("DistanceY", 6, 2, 10, 2, Q("127.577901 mm")),
    Sketcher.Constraint("DistanceY", 14, 2, 13, 2, Q("105.862498 mm")),
    Sketcher.Constraint("DistanceX", 14, 2, 10, 2, Q("371.876001 mm")),
    Sketcher.Constraint("DistanceY", 11, 2, 15, 2, Q("81.2006 mm")),
    Sketcher.Constraint("DistanceX", 0, 2, 17, 2, Q("288.9651 mm")),
    Sketcher.Constraint("DistanceY", 18, 2, 17, 2, Q("92.290401 mm")),
    Sketcher.Constraint("Distance", 8, Q("93.64685 mm")),
    Sketcher.Constraint("Distance", 10, Q("138.409082 mm")),
    Sketcher.Constraint("Distance", 12, Q("223.392529 mm")),
    Sketcher.Constraint("Distance", 15, Q("182.82816 mm")),
    Sketcher.Constraint("DistanceX", 12, 2, -1, 1, Q("2620.516539 mm")),
    Sketcher.Constraint("DistanceY", 12, 2, -1, 1, Q("2052.017212 mm")),
    Sketcher.Constraint("DistanceX", 13, 2, -1, 1, Q("2753.52335 mm")),
    Sketcher.Constraint("DistanceY", 13, 2, -1, 1, Q("1815.862179 mm")),
    Sketcher.Constraint("DistanceY", 17, 2, -1, 1, Q("1862.00738 mm")),
    Sketcher.Constraint("DistanceX", 18, 2, -1, 1, Q("3299.122572 mm")),
    Sketcher.Constraint("DistanceY", 19, 2, -1, 1, Q("1715.428472 mm")),
    Sketcher.Constraint("DistanceX", 6, 2, 5, 2, Q("135.69303 mm")),
    Sketcher.Constraint("DistanceY", 8, 2, 5, 2, Q("62.211119 mm")),
    Sketcher.Constraint("DistanceX", 11, 2, 10, 2, Q("51.573992 mm")),
    Sketcher.Constraint("DistanceX", 16, 2, 15, 2, Q("81.432819 mm")),
    Sketcher.Constraint("DistanceY", 16, 2, 15, 2, Q("203.34971 mm")),
])
sketch7.setExpression("Constraints[29]", "Params.sketch7_width")
sketch7.setExpression("Constraints[30]", "Params.sketch7_width2")
pad6 = body3.newObject("PartDesign::Pad", "Pad005")
pad6.Profile = sketch7
pad6.setExpression("Length", "Params.pad6_length")

doc.recompute()
